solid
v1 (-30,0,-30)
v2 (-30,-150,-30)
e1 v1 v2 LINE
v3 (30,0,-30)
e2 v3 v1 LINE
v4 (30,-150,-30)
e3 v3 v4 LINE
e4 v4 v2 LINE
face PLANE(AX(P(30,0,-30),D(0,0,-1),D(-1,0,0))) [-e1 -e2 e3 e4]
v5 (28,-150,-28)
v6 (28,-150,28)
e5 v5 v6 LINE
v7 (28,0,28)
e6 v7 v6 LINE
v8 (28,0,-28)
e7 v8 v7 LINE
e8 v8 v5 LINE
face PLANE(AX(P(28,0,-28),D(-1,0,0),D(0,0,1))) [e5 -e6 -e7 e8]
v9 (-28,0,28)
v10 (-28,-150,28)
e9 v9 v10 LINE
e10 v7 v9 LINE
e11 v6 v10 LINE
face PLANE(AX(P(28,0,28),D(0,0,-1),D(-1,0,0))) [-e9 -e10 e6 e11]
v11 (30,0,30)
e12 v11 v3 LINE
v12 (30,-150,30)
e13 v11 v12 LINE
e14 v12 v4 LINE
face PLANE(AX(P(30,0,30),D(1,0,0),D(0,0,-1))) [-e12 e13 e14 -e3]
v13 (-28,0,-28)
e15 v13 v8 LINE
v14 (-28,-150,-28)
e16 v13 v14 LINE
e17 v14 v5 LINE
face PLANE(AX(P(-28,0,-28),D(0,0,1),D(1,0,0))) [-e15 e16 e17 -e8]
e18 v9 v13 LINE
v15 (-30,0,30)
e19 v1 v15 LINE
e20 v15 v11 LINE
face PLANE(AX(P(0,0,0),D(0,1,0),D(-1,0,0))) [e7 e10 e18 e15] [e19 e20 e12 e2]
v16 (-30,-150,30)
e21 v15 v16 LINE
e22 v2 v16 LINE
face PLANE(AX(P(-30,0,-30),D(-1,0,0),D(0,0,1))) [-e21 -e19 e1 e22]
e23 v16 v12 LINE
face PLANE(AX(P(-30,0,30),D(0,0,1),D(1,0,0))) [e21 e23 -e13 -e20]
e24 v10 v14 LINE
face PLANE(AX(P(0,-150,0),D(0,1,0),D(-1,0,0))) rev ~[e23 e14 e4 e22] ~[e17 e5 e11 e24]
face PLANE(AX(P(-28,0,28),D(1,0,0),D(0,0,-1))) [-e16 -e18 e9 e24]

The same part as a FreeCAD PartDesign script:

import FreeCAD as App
import Part
import Sketcher
from FreeCAD import Vector
Q = App.Units.Quantity


def add_polygon(sketch, points):
    """Adds a closed chain of lines whose ends are joined by coincident constraints."""
    first, n = sketch.GeometryCount, len(points)
    for a, b in zip(points, points[1:] + points[:1]):
        sketch.addGeometry(Part.LineSegment(App.Vector(*a, 0), App.Vector(*b, 0)), False)
    for i in range(n):
        sketch.addConstraint(Sketcher.Constraint("Coincident", first + i, 2, first + (i + 1) % n, 1))

doc = App.newDocument("Part")
body = doc.addObject("PartDesign::Body", "Body")

sketch1 = body.newObject("Sketcher::SketchObject", "Sketch")
sketch1.AttachmentSupport = (doc.getObject("XZ_Plane"), [""])
sketch1.MapMode = "FlatFace"
add_polygon(sketch1, [(-30, -30), (-30, 30), (30, 30), (30, -30)])
add_polygon(sketch1, [(28, -28), (28, 28), (-28, 28), (-28, -28)])
sketch1.addConstraint([
    Sketcher.Constraint("Vertical", 0),
    Sketcher.Constraint("Horizontal", 1),
    Sketcher.Constraint("Vertical", 2),
    Sketcher.Constraint("Horizontal", 3),
    Sketcher.Constraint("Vertical", 4),
    Sketcher.Constraint("Horizontal", 5),
    Sketcher.Constraint("Vertical", 6),
    Sketcher.Constraint("Horizontal", 7),
    Sketcher.Constraint("Symmetric", 0, 2, 2, 2, -1, 1),
    Sketcher.Constraint("Symmetric", 4, 2, 6, 2, -1, 1),
    Sketcher.Constraint("Equal", 3, 0),
    Sketcher.Constraint("Equal", 7, 4),
    Sketcher.Constraint("DistanceX", 1, 1, 1, 2, Q("60 mm")),
    Sketcher.Constraint("DistanceX", 4, 2, 1, 2, Q("2 mm")),
])
pad1 = body.newObject("PartDesign::Pad", "Pad")
pad1.Profile = sketch1
pad1.Length = 150

doc.recompute()
